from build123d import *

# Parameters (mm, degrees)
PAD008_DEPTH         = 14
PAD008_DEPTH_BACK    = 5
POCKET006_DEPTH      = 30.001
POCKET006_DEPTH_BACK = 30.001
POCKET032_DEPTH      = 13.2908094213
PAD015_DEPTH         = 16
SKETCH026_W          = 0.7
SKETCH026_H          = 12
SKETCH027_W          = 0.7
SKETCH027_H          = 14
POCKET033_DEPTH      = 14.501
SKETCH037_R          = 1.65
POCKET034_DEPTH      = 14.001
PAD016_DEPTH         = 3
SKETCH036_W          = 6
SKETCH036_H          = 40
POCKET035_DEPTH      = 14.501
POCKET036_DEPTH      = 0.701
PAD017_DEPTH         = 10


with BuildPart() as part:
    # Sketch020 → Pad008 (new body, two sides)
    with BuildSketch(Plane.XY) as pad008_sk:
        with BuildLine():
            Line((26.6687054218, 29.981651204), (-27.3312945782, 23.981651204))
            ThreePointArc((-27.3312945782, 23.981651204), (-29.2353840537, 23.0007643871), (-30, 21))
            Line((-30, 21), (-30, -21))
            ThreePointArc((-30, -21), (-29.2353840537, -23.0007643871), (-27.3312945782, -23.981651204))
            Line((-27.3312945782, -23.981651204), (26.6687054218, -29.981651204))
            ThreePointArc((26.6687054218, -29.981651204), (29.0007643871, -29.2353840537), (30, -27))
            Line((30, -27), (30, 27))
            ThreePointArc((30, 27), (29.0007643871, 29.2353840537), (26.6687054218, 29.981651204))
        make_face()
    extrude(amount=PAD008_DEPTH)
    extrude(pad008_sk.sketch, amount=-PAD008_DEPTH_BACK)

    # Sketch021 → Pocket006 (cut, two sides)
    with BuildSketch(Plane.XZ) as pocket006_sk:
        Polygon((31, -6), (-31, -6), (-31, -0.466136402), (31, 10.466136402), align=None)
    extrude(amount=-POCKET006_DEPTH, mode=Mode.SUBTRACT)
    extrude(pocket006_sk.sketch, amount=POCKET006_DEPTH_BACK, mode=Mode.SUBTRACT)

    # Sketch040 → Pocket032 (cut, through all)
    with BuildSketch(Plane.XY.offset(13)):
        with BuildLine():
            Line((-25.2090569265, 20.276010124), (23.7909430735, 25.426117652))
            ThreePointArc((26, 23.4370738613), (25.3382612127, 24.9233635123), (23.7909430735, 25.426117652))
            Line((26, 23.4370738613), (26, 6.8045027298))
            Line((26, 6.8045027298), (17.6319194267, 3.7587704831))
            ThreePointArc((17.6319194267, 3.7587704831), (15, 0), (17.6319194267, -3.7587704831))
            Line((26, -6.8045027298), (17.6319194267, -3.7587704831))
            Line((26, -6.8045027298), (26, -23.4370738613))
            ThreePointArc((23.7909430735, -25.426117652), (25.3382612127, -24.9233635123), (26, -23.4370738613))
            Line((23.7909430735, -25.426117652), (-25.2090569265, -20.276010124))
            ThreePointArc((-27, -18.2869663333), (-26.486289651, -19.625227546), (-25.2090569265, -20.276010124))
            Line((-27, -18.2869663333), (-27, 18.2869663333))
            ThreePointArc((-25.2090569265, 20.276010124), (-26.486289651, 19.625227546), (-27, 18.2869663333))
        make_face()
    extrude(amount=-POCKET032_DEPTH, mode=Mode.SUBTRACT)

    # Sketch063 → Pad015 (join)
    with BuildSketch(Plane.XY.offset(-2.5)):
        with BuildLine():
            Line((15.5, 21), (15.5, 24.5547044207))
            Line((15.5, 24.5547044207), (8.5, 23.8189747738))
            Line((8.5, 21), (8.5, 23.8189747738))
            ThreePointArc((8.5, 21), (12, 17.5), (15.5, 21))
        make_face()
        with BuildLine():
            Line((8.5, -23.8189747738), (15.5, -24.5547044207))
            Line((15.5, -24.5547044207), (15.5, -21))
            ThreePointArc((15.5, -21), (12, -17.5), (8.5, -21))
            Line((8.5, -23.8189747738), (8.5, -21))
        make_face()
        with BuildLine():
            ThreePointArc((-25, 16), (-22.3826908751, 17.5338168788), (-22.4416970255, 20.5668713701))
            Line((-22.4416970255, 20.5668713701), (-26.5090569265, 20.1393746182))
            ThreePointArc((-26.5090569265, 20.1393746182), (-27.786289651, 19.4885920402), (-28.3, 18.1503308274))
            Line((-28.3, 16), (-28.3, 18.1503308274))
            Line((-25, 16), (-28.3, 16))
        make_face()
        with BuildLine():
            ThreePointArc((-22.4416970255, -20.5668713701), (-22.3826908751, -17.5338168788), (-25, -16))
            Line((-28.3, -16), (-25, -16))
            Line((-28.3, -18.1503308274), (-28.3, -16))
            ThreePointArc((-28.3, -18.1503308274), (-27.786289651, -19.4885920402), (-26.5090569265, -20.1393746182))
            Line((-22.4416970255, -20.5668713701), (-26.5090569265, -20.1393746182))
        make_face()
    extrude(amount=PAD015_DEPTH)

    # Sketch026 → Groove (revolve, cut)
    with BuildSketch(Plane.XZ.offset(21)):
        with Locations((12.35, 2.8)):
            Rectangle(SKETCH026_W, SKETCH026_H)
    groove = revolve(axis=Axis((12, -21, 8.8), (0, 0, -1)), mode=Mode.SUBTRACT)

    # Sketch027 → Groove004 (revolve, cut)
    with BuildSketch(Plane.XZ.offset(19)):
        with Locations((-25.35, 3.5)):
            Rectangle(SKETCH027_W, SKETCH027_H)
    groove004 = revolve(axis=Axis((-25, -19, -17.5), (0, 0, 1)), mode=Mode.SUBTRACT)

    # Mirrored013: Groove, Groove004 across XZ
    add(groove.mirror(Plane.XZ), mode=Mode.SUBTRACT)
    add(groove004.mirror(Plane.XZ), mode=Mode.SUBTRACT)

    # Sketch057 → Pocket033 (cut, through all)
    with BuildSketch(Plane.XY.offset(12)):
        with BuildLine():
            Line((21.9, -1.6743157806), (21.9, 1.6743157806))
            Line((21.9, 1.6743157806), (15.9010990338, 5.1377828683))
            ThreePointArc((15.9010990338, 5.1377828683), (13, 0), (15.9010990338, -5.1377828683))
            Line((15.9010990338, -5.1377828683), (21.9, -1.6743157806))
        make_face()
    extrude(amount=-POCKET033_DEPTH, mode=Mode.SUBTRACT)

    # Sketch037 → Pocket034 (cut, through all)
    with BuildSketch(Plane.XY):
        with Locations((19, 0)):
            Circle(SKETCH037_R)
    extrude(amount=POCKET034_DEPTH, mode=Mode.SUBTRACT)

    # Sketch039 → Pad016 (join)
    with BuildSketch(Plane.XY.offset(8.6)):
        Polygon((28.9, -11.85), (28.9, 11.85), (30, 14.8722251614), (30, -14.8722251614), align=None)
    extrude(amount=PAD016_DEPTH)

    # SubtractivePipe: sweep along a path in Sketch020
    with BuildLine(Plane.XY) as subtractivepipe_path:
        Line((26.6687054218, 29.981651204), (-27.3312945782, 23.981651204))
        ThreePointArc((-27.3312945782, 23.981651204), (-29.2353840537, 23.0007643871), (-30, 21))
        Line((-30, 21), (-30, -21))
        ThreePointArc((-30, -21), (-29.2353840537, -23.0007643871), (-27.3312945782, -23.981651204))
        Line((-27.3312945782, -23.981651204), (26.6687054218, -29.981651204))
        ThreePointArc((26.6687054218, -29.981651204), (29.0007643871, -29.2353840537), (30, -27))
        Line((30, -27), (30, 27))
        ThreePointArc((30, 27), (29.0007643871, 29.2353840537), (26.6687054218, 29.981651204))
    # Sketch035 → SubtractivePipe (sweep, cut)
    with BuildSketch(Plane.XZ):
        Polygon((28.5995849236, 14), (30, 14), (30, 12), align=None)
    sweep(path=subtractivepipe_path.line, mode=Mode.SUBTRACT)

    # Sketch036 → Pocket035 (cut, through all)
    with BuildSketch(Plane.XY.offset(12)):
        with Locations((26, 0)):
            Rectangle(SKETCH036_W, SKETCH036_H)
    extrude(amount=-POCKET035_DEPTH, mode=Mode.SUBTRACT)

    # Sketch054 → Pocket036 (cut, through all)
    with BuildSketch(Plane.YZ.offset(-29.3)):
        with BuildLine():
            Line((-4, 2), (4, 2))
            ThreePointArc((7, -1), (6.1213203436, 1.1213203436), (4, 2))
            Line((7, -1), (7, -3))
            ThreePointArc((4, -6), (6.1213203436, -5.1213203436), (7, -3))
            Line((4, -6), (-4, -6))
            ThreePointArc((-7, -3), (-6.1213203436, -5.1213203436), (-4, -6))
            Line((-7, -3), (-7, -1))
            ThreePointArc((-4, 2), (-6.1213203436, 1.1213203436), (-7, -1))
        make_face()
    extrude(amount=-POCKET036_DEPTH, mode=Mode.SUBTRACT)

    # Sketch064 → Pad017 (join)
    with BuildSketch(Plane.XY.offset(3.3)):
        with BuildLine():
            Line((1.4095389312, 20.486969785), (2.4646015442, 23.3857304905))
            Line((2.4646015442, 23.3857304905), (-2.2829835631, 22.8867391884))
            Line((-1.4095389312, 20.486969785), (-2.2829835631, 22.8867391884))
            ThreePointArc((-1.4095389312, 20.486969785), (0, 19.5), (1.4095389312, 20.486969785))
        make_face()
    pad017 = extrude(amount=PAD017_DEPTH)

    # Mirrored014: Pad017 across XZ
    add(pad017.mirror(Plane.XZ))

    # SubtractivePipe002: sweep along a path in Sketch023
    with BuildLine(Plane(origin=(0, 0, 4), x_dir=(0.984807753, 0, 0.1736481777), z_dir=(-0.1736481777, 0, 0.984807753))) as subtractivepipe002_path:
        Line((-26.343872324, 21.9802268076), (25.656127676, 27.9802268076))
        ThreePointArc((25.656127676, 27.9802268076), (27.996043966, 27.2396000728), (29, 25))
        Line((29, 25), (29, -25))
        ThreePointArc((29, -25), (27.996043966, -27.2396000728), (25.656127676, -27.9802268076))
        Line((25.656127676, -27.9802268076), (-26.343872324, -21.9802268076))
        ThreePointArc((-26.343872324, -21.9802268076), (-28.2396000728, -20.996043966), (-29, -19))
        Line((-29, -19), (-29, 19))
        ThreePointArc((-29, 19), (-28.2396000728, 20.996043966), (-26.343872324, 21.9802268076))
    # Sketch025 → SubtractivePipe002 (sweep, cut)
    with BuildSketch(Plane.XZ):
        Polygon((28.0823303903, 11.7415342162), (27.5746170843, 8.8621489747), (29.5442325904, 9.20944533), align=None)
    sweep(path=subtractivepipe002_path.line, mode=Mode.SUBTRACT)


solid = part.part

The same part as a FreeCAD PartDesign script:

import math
import FreeCAD as App
import Part
import Sketcher
from FreeCAD import Vector
Q = App.Units.Quantity


def add_polygon(sketch, points):
    """Adds a closed chain of lines whose ends are joined by coincident constraints."""
    first, n = sketch.GeometryCount, len(points)
    for a, b in zip(points, points[1:] + points[:1]):
        sketch.addGeometry(Part.LineSegment(App.Vector(*a, 0), App.Vector(*b, 0)), False)
    for i in range(n):
        sketch.addConstraint(Sketcher.Constraint("Coincident", first + i, 2, first + (i + 1) % n, 1))

doc = App.newDocument("Part")
body = doc.addObject("PartDesign::Body", "Body")

sketch1 = body.newObject("Sketcher::SketchObject", "Sketch")
sketch1.AttachmentSupport = (doc.getObject("XY_Plane"), [""])
sketch1.MapMode = "FlatFace"
sketch1.addGeometry(Part.LineSegment(Vector(26.668705, 29.981651, 0), Vector(-27.331295, 23.981651, 0)), False)
sketch1.addGeometry(Part.ArcOfCircle(Part.Circle(Vector(-27, 21, 0), Vector(0, 0, 1), 3), math.radians(96.340192), math.radians(180)), False)
sketch1.addGeometry(Part.LineSegment(Vector(-30, 21, 0), Vector(-30, -21, 0)), False)
sketch1.addGeometry(Part.ArcOfCircle(Part.Circle(Vector(-27, -21, 0), Vector(0, 0, 1), 3), math.radians(180), math.radians(263.659808)), False)
sketch1.addGeometry(Part.LineSegment(Vector(-27.331295, -23.981651, 0), Vector(26.668705, -29.981651, 0)), False)
sketch1.addGeometry(Part.ArcOfCircle(Part.Circle(Vector(27, -27, 0), Vector(0, 0, 1), 3), math.radians(-96.340192), math.radians(0)), False)
sketch1.addGeometry(Part.LineSegment(Vector(30, -27, 0), Vector(30, 27, 0)), False)
sketch1.addGeometry(Part.ArcOfCircle(Part.Circle(Vector(27, 27, 0), Vector(0, 0, 1), 3), math.radians(0), math.radians(96.340192)), False)
sketch1.addConstraint(Sketcher.Constraint("Tangent", 0, 2, 1, 1))
sketch1.addConstraint(Sketcher.Constraint("Tangent", 1, 2, 2, 1))
sketch1.addConstraint(Sketcher.Constraint("Tangent", 2, 2, 3, 1))
sketch1.addConstraint(Sketcher.Constraint("Tangent", 3, 2, 4, 1))
sketch1.addConstraint(Sketcher.Constraint("Tangent", 4, 2, 5, 1))
sketch1.addConstraint(Sketcher.Constraint("Tangent", 5, 2, 6, 1))
sketch1.addConstraint(Sketcher.Constraint("Tangent", 6, 2, 7, 1))
sketch1.addConstraint(Sketcher.Constraint("Tangent", 7, 2, 0, 1))
sketch1.addConstraint(Sketcher.Constraint("Vertical", 2))
sketch1.addConstraint(Sketcher.Constraint("Vertical", 6))
sketch1.addConstraint(Sketcher.Constraint("Equal", 1, 3))
sketch1.addConstraint(Sketcher.Constraint("Equal", 3, 5))
sketch1.addConstraint(Sketcher.Constraint("Equal", 5, 7))
sketch1.addConstraint(Sketcher.Constraint("Symmetric", 0, 2, 3, 2, -1))
sketch1.addConstraint(Sketcher.Constraint("Radius", 1, Q("3 mm")))
sketch1.addConstraint(Sketcher.Constraint("DistanceY", 2, 2, 2, 1, Q("42 mm")))
sketch1.addConstraint(Sketcher.Constraint("DistanceY", 6, 1, 6, 2, Q("54 mm")))
sketch1.addConstraint(Sketcher.Constraint("DistanceX", 1, 3, -1, 1, Q("27 mm")))
sketch1.addConstraint(Sketcher.Constraint("DistanceX", -1, 1, 5, 3, Q("27 mm")))
pad1 = body.newObject("PartDesign::Pad", "Pad")
pad1.Profile = sketch1
pad1.Type = "TwoLengths"
pad1.Length = 14
pad1.Length2 = 5

sketch2 = body.newObject("Sketcher::SketchObject", "Sketch001")
sketch2.AttachmentSupport = (doc.getObject("XZ_Plane"), [""])
sketch2.MapMode = "FlatFace"
add_polygon(sketch2, [(-31, -6), (31, -6), (31, 10.466136), (-31, -0.466136)])
sketch2.addConstraint(Sketcher.Constraint("Horizontal", 0))
sketch2.addConstraint(Sketcher.Constraint("Vertical", 1))
sketch2.addConstraint(Sketcher.Constraint("Vertical", 3))
sketch2.addConstraint(Sketcher.Constraint("DistanceX", 0, 1, 0, 2, Q("62 mm")))
sketch2.addConstraint(Sketcher.Constraint("Angle", 2, Q("-170 deg")))
sketch2.addConstraint(Sketcher.Constraint("DistanceX", -1, 1, 0, 2, Q("31 mm")))
sketch2.addConstraint(Sketcher.Constraint("DistanceY", 0, 2, -1, 1, Q("6 mm")))
sketch2.addConstraint(Sketcher.Constraint("DistanceY", 1, 1, 1, 2, Q("16.466136 mm")))
pocket1 = body.newObject("PartDesign::Pocket", "Pocket")
pocket1.Profile = sketch2
pocket1.Type = "ThroughAll"
pocket1.Midplane = True

sketch3 = body.newObject("Sketcher::SketchObject", "Sketch002")
sketch3.AttachmentSupport = (doc.getObject("XY_Plane"), [""])
sketch3.MapMode = "FlatFace"
sketch3.AttachmentOffset = App.Placement(Vector(0, 0, 13), App.Rotation())
sketch3.addGeometry(Part.LineSegment(Vector(23.790943, 25.426118, 0), Vector(-25.209057, 20.27601, 0)), False)
sketch3.addGeometry(Part.ArcOfCircle(Part.Circle(Vector(-25, 18.286966, 0), Vector(0, 0, 1), 2), math.radians(96), math.radians(180)), False)
sketch3.addGeometry(Part.LineSegment(Vector(-27, 18.286966, 0), Vector(-27, -18.286966, 0)), False)
sketch3.addGeometry(Part.ArcOfCircle(Part.Circle(Vector(-25, -18.286966, 0), Vector(0, 0, 1), 2), math.radians(180), math.radians(264)), False)
sketch3.addGeometry(Part.LineSegment(Vector(-25.209057, -20.27601, 0), Vector(23.790943, -25.426118, 0)), False)
sketch3.addGeometry(Part.ArcOfCircle(Part.Circle(Vector(24, -23.437074, 0), Vector(0, 0, 1), 2), math.radians(-96), math.radians(0)), False)
sketch3.addGeometry(Part.LineSegment(Vector(26, -23.437074, 0), Vector(26, -6.804503, 0)), False)
sketch3.addGeometry(Part.LineSegment(Vector(26, -6.804503, 0), Vector(17.631919, -3.75877, 0)), False)
sketch3.addGeometry(Part.ArcOfCircle(Part.Circle(Vector(19, 0, 0), Vector(0, 0, 1), 4), math.radians(110), math.radians(250)), False)
sketch3.addGeometry(Part.LineSegment(Vector(17.631919, 3.75877, 0), Vector(26, 6.804503, 0)), False)
sketch3.addGeometry(Part.LineSegment(Vector(26, 6.804503, 0), Vector(26, 23.437074, 0)), False)
sketch3.addGeometry(Part.ArcOfCircle(Part.Circle(Vector(24, 23.437074, 0), Vector(0, 0, 1), 2), math.radians(0), math.radians(96)), False)
sketch3.addConstraint(Sketcher.Constraint("Tangent", 0, 2, 1, 1))
sketch3.addConstraint(Sketcher.Constraint("Tangent", 1, 2, 2, 1))
sketch3.addConstraint(Sketcher.Constraint("Tangent", 2, 2, 3, 1))
sketch3.addConstraint(Sketcher.Constraint("Tangent", 3, 2, 4, 1))
sketch3.addConstraint(Sketcher.Constraint("Tangent", 4, 2, 5, 1))
sketch3.addConstraint(Sketcher.Constraint("Tangent", 5, 2, 6, 1))
sketch3.addConstraint(Sketcher.Constraint("Coincident", 6, 2, 7, 1))
sketch3.addConstraint(Sketcher.Constraint("Tangent", 7, 2, 8, 2))
sketch3.addConstraint(Sketcher.Constraint("Tangent", 8, 1, 9, 1))
sketch3.addConstraint(Sketcher.Constraint("Coincident", 9, 2, 10, 1))
sketch3.addConstraint(Sketcher.Constraint("Tangent", 10, 2, 11, 1))
sketch3.addConstraint(Sketcher.Constraint("Tangent", 11, 2, 0, 1))
sketch3.addConstraint(Sketcher.Constraint("Vertical", 2))
sketch3.addConstraint(Sketcher.Constraint("Vertical", 6))
sketch3.addConstraint(Sketcher.Constraint("Vertical", 10))
sketch3.addConstraint(Sketcher.Constraint("Equal", 1, 3))
sketch3.addConstraint(Sketcher.Constraint("Equal", 3, 5))
sketch3.addConstraint(Sketcher.Constraint("Equal", 5, 11))
sketch3.addConstraint(Sketcher.Constraint("Symmetric", 5, 3, 11, 3, -1))
sketch3.addConstraint(Sketcher.Constraint("Symmetric", 7, 2, 8, 1, -1))
sketch3.addConstraint(Sketcher.Constraint("Vertical", 0, 2, 3, 2))
sketch3.addConstraint(Sketcher.Constraint("Radius", 1, Q("2 mm")))
sketch3.addConstraint(Sketcher.Constraint("Radius", 8, Q("4 mm")))
sketch3.addConstraint(Sketcher.Constraint("Angle", 0, Q("-174 deg")))
sketch3.addConstraint(Sketcher.Constraint("Angle", 7, Q("160 deg")))
sketch3.addConstraint(Sketcher.Constraint("DistanceX", 1, 3, -1, 1, Q("25 mm")))
sketch3.addConstraint(Sketcher.Constraint("DistanceX", -1, 1, 5, 3, Q("24 mm")))
sketch3.addConstraint(Sketcher.Constraint("DistanceX", -1, 1, 8, 3, Q("19 mm")))
sketch3.addConstraint(Sketcher.Constraint("DistanceY", 6, 1, 6, 2, Q("16.632571 mm")))
pocket2 = body.newObject("PartDesign::Pocket", "Pocket001")
pocket2.Profile = sketch3
pocket2.Type = "ThroughAll"

sketch4 = body.newObject("Sketcher::SketchObject", "Sketch003")
sketch4.AttachmentSupport = (doc.getObject("XY_Plane"), [""])
sketch4.MapMode = "FlatFace"
sketch4.AttachmentOffset = App.Placement(Vector(0, 0, -2.5), App.Rotation())
sketch4.addGeometry(Part.LineSegment(Vector(15.5, 21, 0), Vector(15.5, 24.554704, 0)), False)
sketch4.addGeometry(Part.LineSegment(Vector(15.5, 24.554704, 0), Vector(8.5, 23.818975, 0)), False)
sketch4.addGeometry(Part.LineSegment(Vector(8.5, 23.818975, 0), Vector(8.5, 21, 0)), False)
sketch4.addGeometry(Part.ArcOfCircle(Part.Circle(Vector(12, 21, 0), Vector(0, 0, 1), 3.5), math.radians(180), math.radians(360)), False)
sketch4.addGeometry(Part.LineSegment(Vector(8.5, -23.818975, 0), Vector(15.5, -24.554704, 0)), False)
sketch4.addGeometry(Part.LineSegment(Vector(15.5, -24.554704, 0), Vector(15.5, -21, 0)), False)
sketch4.addGeometry(Part.ArcOfCircle(Part.Circle(Vector(12, -21, 0), Vector(0, 0, 1), 3.5), math.radians(0), math.radians(180)), False)
sketch4.addGeometry(Part.LineSegment(Vector(8.5, -21, 0), Vector(8.5, -23.818975, 0)), False)
sketch4.addGeometry(Part.ArcOfCircle(Part.Circle(Vector(-25, 19, 0), Vector(0, 0, 1), 3), math.radians(-90), math.radians(31.486017)), False)
sketch4.addGeometry(Part.LineSegment(Vector(-22.441697, 20.566871, 0), Vector(-26.509057, 20.139375, 0)), False)
sketch4.addGeometry(Part.ArcOfCircle(Part.Circle(Vector(-26.3, 18.150331, 0), Vector(0, 0, 1), 2), math.radians(96), math.radians(180)), False)
sketch4.addGeometry(Part.LineSegment(Vector(-28.3, 18.150331, 0), Vector(-28.3, 16, 0)), False)
sketch4.addGeometry(Part.LineSegment(Vector(-28.3, 16, 0), Vector(-25, 16, 0)), False)
sketch4.addGeometry(Part.ArcOfCircle(Part.Circle(Vector(-25, -19, 0), Vector(0, 0, 1), 3), math.radians(-31.486017), math.radians(90)), False)
sketch4.addGeometry(Part.LineSegment(Vector(-25, -16, 0), Vector(-28.3, -16, 0)), False)
sketch4.addGeometry(Part.LineSegment(Vector(-28.3, -16, 0), Vector(-28.3, -18.150331, 0)), False)
sketch4.addGeometry(Part.ArcOfCircle(Part.Circle(Vector(-26.3, -18.150331, 0), Vector(0, 0, 1), 2), math.radians(180), math.radians(264)), False)
sketch4.addGeometry(Part.LineSegment(Vector(-26.509057, -20.139375, 0), Vector(-22.441697, -20.566871, 0)), False)
sketch4.addConstraint(Sketcher.Constraint("Coincident", 0, 2, 1, 1))
sketch4.addConstraint(Sketcher.Constraint("Coincident", 1, 2, 2, 1))
sketch4.addConstraint(Sketcher.Constraint("Tangent", 2, 2, 3, 1))
sketch4.addConstraint(Sketcher.Constraint("Tangent", 3, 2, 0, 1))
sketch4.addConstraint(Sketcher.Constraint("Coincident", 4, 2, 5, 1))
sketch4.addConstraint(Sketcher.Constraint("Tangent", 5, 2, 6, 1))
sketch4.addConstraint(Sketcher.Constraint("Tangent", 6, 2, 7, 1))
sketch4.addConstraint(Sketcher.Constraint("Coincident", 7, 2, 4, 1))
sketch4.addConstraint(Sketcher.Constraint("Coincident", 8, 2, 9, 1))
sketch4.addConstraint(Sketcher.Constraint("Tangent", 9, 2, 10, 1))
sketch4.addConstraint(Sketcher.Constraint("Tangent", 10, 2, 11, 1))
sketch4.addConstraint(Sketcher.Constraint("Coincident", 11, 2, 12, 1))
sketch4.addConstraint(Sketcher.Constraint("Tangent", 12, 2, 8, 1))
sketch4.addConstraint(Sketcher.Constraint("Tangent", 13, 2, 14, 1))
sketch4.addConstraint(Sketcher.Constraint("Coincident", 14, 2, 15, 1))
sketch4.addConstraint(Sketcher.Constraint("Tangent", 15, 2, 16, 1))
sketch4.addConstraint(Sketcher.Constraint("Tangent", 16, 2, 17, 1))
sketch4.addConstraint(Sketcher.Constraint("Coincident", 17, 2, 13, 1))
sketch4.addConstraint(Sketcher.Constraint("Vertical", 0))
sketch4.addConstraint(Sketcher.Constraint("Vertical", 2))
sketch4.addConstraint(Sketcher.Constraint("Vertical", 5))
sketch4.addConstraint(Sketcher.Constraint("Vertical", 7))
sketch4.addConstraint(Sketcher.Constraint("Vertical", 11))
sketch4.addConstraint(Sketcher.Constraint("Horizontal", 12))
sketch4.addConstraint(Sketcher.Constraint("Horizontal", 14))
sketch4.addConstraint(Sketcher.Constraint("Vertical", 15))
sketch4.addConstraint(Sketcher.Constraint("Equal", 3, 6))
sketch4.addConstraint(Sketcher.Constraint("Equal", 8, 13))
sketch4.addConstraint(Sketcher.Constraint("Equal", 10, 16))
sketch4.addConstraint(Sketcher.Constraint("Symmetric", 3, 3, 6, 3, -1))
sketch4.addConstraint(Sketcher.Constraint("Symmetric", 8, 3, 13, 3, -1))
sketch4.addConstraint(Sketcher.Constraint("Symmetric", 10, 3, 16, 3, -1))
sketch4.addConstraint(Sketcher.Constraint("Parallel", 1, 9))
sketch4.addConstraint(Sketcher.Constraint("Parallel", 4, 17))
sketch4.addConstraint(Sketcher.Constraint("Vertical", 9, 2, 16, 2))
sketch4.addConstraint(Sketcher.Constraint("Equal", 0, 5))
sketch4.addConstraint(Sketcher.Constraint("Radius", 8, Q("3 mm")))
sketch4.addConstraint(Sketcher.Constraint("Radius", 10, Q("2 mm")))
sketch4.addConstraint(Sketcher.Constraint("Radius", 3, Q("3.5 mm")))
sketch4.addConstraint(Sketcher.Constraint("Angle", 1, Q("-174 deg")))
sketch4.addConstraint(Sketcher.Constraint("DistanceX", 12, 1, 12, 2, Q("3.3 mm")))
sketch4.addConstraint(Sketcher.Constraint("DistanceX", -1, 1, 3, 3, Q("12 mm")))
sketch4.addConstraint(Sketcher.Constraint("DistanceY", -1, 1, 3, 3, Q("21 mm")))
sketch4.addConstraint(Sketcher.Constraint("DistanceX", 8, 3, -1, 1, Q("25 mm")))
sketch4.addConstraint(Sketcher.Constraint("DistanceY", -1, 1, 8, 3, Q("19 mm")))
sketch4.addConstraint(Sketcher.Constraint("DistanceY", 11, 2, 11, 1, Q("2.150331 mm")))
sketch4.addConstraint(Sketcher.Constraint("DistanceY", 9, 2, 1, 2, Q("3.6796 mm")))
pad2 = body.newObject("PartDesign::Pad", "Pad001")
pad2.Profile = sketch4
pad2.Length = 16

sketch5 = body.newObject("Sketcher::SketchObject", "Sketch004")
sketch5.AttachmentSupport = (doc.getObject("XZ_Plane"), [""])
sketch5.MapMode = "FlatFace"
sketch5.AttachmentOffset = App.Placement(Vector(0, 0, 21), App.Rotation())
add_polygon(sketch5, [(12, 8.8), (12, -3.2), (12.7, -3.2), (12.7, 8.8)])
sketch5.addGeometry(Part.LineSegment(Vector(12, 8.8, 0), Vector(12, -3.2, 0)), True)
sketch5.addConstraint(Sketcher.Constraint("Vertical", 0))
sketch5.addConstraint(Sketcher.Constraint("Horizontal", 1))
sketch5.addConstraint(Sketcher.Constraint("Vertical", 2))
sketch5.addConstraint(Sketcher.Constraint("Horizontal", 3))
sketch5.addConstraint(Sketcher.Constraint("Vertical", 4))
sketch5.addConstraint(Sketcher.Constraint("Coincident", 4, 1, 3, 2))
sketch5.addConstraint(Sketcher.Constraint("Horizontal", 1, 2, 4, 2))
sketch5.addConstraint(Sketcher.Constraint("DistanceY", 0, 2, 0, 1, Q("12 mm")))
sketch5.addConstraint(Sketcher.Constraint("DistanceX", 1, 1, 1, 2, Q("0.7 mm")))
sketch5.addConstraint(Sketcher.Constraint("DistanceX", -1, 1, 0, 2, Q("12 mm")))
sketch5.addConstraint(Sketcher.Constraint("DistanceY", 0, 2, -1, 1, Q("3.2 mm")))
groove = body.newObject("PartDesign::Groove", "Groove")
groove.Profile = sketch5
groove.ReferenceAxis = (sketch5, ["Axis0"])
groove.Angle = 360

sketch6 = body.newObject("Sketcher::SketchObject", "Sketch005")
sketch6.AttachmentSupport = (doc.getObject("XZ_Plane"), [""])
sketch6.MapMode = "FlatFace"
sketch6.AttachmentOffset = App.Placement(Vector(0, 0, 19), App.Rotation())
add_polygon(sketch6, [(-25.7, 10.5), (-25.7, -3.5), (-25, -3.5), (-25, 10.5)])
sketch6.addGeometry(Part.LineSegment(Vector(-25, -3.5, 0), Vector(-25, 10.5, 0)), True)
sketch6.addConstraint(Sketcher.Constraint("Vertical", 0))
sketch6.addConstraint(Sketcher.Constraint("Horizontal", 1))
sketch6.addConstraint(Sketcher.Constraint("Vertical", 2))
sketch6.addConstraint(Sketcher.Constraint("Horizontal", 3))
sketch6.addConstraint(Sketcher.Constraint("Vertical", 4))
sketch6.addConstraint(Sketcher.Constraint("Coincident", 4, 1, 1, 2))
sketch6.addConstraint(Sketcher.Constraint("Horizontal", 3, 2, 4, 2))
sketch6.addConstraint(Sketcher.Constraint("DistanceY", 0, 2, 0, 1, Q("14 mm")))
sketch6.addConstraint(Sketcher.Constraint("DistanceX", 1, 1, 1, 2, Q("0.7 mm")))
sketch6.addConstraint(Sketcher.Constraint("DistanceX", 1, 2, -1, 1, Q("25 mm")))
sketch6.addConstraint(Sketcher.Constraint("DistanceY", 0, 2, -1, 1, Q("3.5 mm")))
groove2 = body.newObject("PartDesign::Groove", "Groove001")
groove2.Profile = sketch6
groove2.ReferenceAxis = (sketch6, ["Axis0"])
groove2.Angle = 360
doc.recompute()

mirrored = body.newObject("PartDesign::Mirrored", "Mirrored")
mirrored.Originals = [groove, groove2]
mirrored.MirrorPlane = (doc.getObject("XZ_Plane"), [""])
body.Tip = mirrored

sketch7 = body.newObject("Sketcher::SketchObject", "Sketch006")
sketch7.AttachmentSupport = (doc.getObject("XY_Plane"), [""])
sketch7.MapMode = "FlatFace"
sketch7.AttachmentOffset = App.Placement(Vector(0, 0, 12), App.Rotation())
sketch7.addGeometry(Part.LineSegment(Vector(21.9, -1.674316, 0), Vector(21.9, 1.674316, 0)), False)
sketch7.addGeometry(Part.LineSegment(Vector(21.9, 1.674316, 0), Vector(15.901099, 5.137783, 0)), False)
sketch7.addGeometry(Part.ArcOfCircle(Part.Circle(Vector(19, 0, 0), Vector(0, 0, 1), 6), math.radians(121.096665), math.radians(238.903335)), False)
sketch7.addGeometry(Part.LineSegment(Vector(15.901099, -5.137783, 0), Vector(21.9, -1.674316, 0)), False)
sketch7.addConstraint(Sketcher.Constraint("Coincident", 0, 2, 1, 1))
sketch7.addConstraint(Sketcher.Constraint("Coincident", 1, 2, 2, 1))
sketch7.addConstraint(Sketcher.Constraint("Coincident", 2, 2, 3, 1))
sketch7.addConstraint(Sketcher.Constraint("Coincident", 3, 2, 0, 1))
sketch7.addConstraint(Sketcher.Constraint("Vertical", 0))
sketch7.addConstraint(Sketcher.Constraint("Symmetric", 1, 2, 2, 2, -1))
sketch7.addConstraint(Sketcher.Constraint("Equal", 1, 3))
sketch7.addConstraint(Sketcher.Constraint("Radius", 2, Q("6 mm")))
sketch7.addConstraint(Sketcher.Constraint("Angle", 1, Q("150 deg")))
sketch7.addConstraint(Sketcher.Constraint("DistanceX", -1, 1, 2, 3, Q("19 mm")))
sketch7.addConstraint(Sketcher.Constraint("DistanceX", -1, 1, 0, 2, Q("21.9 mm")))
sketch7.addConstraint(Sketcher.Constraint("DistanceY", 0, 1, 0, 2, Q("3.348632 mm")))
pocket3 = body.newObject("PartDesign::Pocket", "Pocket002")
pocket3.Profile = sketch7
pocket3.Type = "ThroughAll"

sketch8 = body.newObject("Sketcher::SketchObject", "Sketch007")
sketch8.AttachmentSupport = (doc.getObject("XY_Plane"), [""])
sketch8.MapMode = "FlatFace"
sketch8.addGeometry(Part.Circle(Vector(19, 0, 0), Vector(0, 0, 1), 1.65), False)
sketch8.addConstraint(Sketcher.Constraint("PointOnObject", 0, 3, -1))
sketch8.addConstraint(Sketcher.Constraint("Diameter", 0, Q("3.3 mm")))
sketch8.addConstraint(Sketcher.Constraint("DistanceX", -1, 1, 0, 3, Q("19 mm")))
pocket4 = body.newObject("PartDesign::Pocket", "Pocket003")
pocket4.Profile = sketch8
pocket4.Type = "ThroughAll"
pocket4.Reversed = True

sketch9 = body.newObject("Sketcher::SketchObject", "Sketch008")
sketch9.AttachmentSupport = (doc.getObject("XY_Plane"), [""])
sketch9.MapMode = "FlatFace"
sketch9.AttachmentOffset = App.Placement(Vector(0, 0, 8.6), App.Rotation())
add_polygon(sketch9, [(28.9, 11.85), (28.9, -11.85), (30, -14.872225), (30, 14.872225)])
sketch9.addConstraint(Sketcher.Constraint("Vertical", 0))
sketch9.addConstraint(Sketcher.Constraint("Vertical", 2))
sketch9.addConstraint(Sketcher.Constraint("Equal", 1, 3))
sketch9.addConstraint(Sketcher.Constraint("Angle", 1, Q("-70 deg")))
sketch9.addConstraint(Sketcher.Constraint("DistanceY", 0, 2, 0, 1, Q("23.7 mm")))
sketch9.addConstraint(Sketcher.Constraint("DistanceX", -1, 1, 1, 2, Q("30 mm")))
sketch9.addConstraint(Sketcher.Constraint("DistanceX", -1, 1, 0, 2, Q("28.9 mm")))
sketch9.addConstraint(Sketcher.Constraint("DistanceY", 0, 2, -1, 1, Q("11.85 mm")))
pad3 = body.newObject("PartDesign::Pad", "Pad002")
pad3.Profile = sketch9
pad3.Length = 3

sketch10 = body.newObject("Sketcher::SketchObject", "Sketch009")
sketch10.AttachmentSupport = (doc.getObject("XZ_Plane"), [""])
sketch10.MapMode = "FlatFace"
add_polygon(sketch10, [(30, 14), (28.599585, 14), (30, 12)])
sketch10.addConstraint(Sketcher.Constraint("Horizontal", 0))
sketch10.addConstraint(Sketcher.Constraint("Vertical", 2))
sketch10.addConstraint(Sketcher.Constraint("DistanceY", 2, 1, 2, 2, Q("2 mm")))
sketch10.addConstraint(Sketcher.Constraint("Angle", 1, Q("-55 deg")))
sketch10.addConstraint(Sketcher.Constraint("DistanceY", -1, 1, 0, 2, Q("14 mm")))
sketch10.addConstraint(Sketcher.Constraint("DistanceX", -1, 1, 1, 2, Q("30 mm")))

sketch11 = body.newObject("Sketcher::SketchObject", "Sketch010")
sketch11.AttachmentSupport = (doc.getObject("XY_Plane"), [""])
sketch11.MapMode = "FlatFace"
sketch11.addGeometry(Part.LineSegment(Vector(26.668705, 29.981651, 0), Vector(-27.331295, 23.981651, 0)), False)
sketch11.addGeometry(Part.ArcOfCircle(Part.Circle(Vector(-27, 21, 0), Vector(0, 0, 1), 3), math.radians(96.340192), math.radians(180)), False)
sketch11.addGeometry(Part.LineSegment(Vector(-30, 21, 0), Vector(-30, -21, 0)), False)
sketch11.addGeometry(Part.ArcOfCircle(Part.Circle(Vector(-27, -21, 0), Vector(0, 0, 1), 3), math.radians(180), math.radians(263.659808)), False)
sketch11.addGeometry(Part.LineSegment(Vector(-27.331295, -23.981651, 0), Vector(26.668705, -29.981651, 0)), False)
sketch11.addGeometry(Part.ArcOfCircle(Part.Circle(Vector(27, -27, 0), Vector(0, 0, 1), 3), math.radians(-96.340192), math.radians(0)), False)
sketch11.addGeometry(Part.LineSegment(Vector(30, -27, 0), Vector(30, 27, 0)), False)
sketch11.addGeometry(Part.ArcOfCircle(Part.Circle(Vector(27, 27, 0), Vector(0, 0, 1), 3), math.radians(0), math.radians(96.340192)), False)
sketch11.addConstraint(Sketcher.Constraint("Tangent", 0, 2, 1, 1))
sketch11.addConstraint(Sketcher.Constraint("Tangent", 1, 2, 2, 1))
sketch11.addConstraint(Sketcher.Constraint("Tangent", 2, 2, 3, 1))
sketch11.addConstraint(Sketcher.Constraint("Tangent", 3, 2, 4, 1))
sketch11.addConstraint(Sketcher.Constraint("Tangent", 4, 2, 5, 1))
sketch11.addConstraint(Sketcher.Constraint("Tangent", 5, 2, 6, 1))
sketch11.addConstraint(Sketcher.Constraint("Tangent", 6, 2, 7, 1))
sketch11.addConstraint(Sketcher.Constraint("Tangent", 7, 2, 0, 1))
sketch11.addConstraint(Sketcher.Constraint("Vertical", 2))
sketch11.addConstraint(Sketcher.Constraint("Vertical", 6))
sketch11.addConstraint(Sketcher.Constraint("Equal", 1, 3))
sketch11.addConstraint(Sketcher.Constraint("Equal", 3, 5))
sketch11.addConstraint(Sketcher.Constraint("Equal", 5, 7))
sketch11.addConstraint(Sketcher.Constraint("Symmetric", 0, 2, 3, 2, -1))
sketch11.addConstraint(Sketcher.Constraint("Radius", 1, Q("3 mm")))
sketch11.addConstraint(Sketcher.Constraint("DistanceY", 2, 2, 2, 1, Q("42 mm")))
sketch11.addConstraint(Sketcher.Constraint("DistanceY", 6, 1, 6, 2, Q("54 mm")))
sketch11.addConstraint(Sketcher.Constraint("DistanceX", 1, 3, -1, 1, Q("27 mm")))
sketch11.addConstraint(Sketcher.Constraint("DistanceX", -1, 1, 5, 3, Q("27 mm")))
doc.recompute()

subtractivepipe = body.newObject("PartDesign::SubtractivePipe", "SubtractivePipe")
subtractivepipe.Profile = sketch10
subtractivepipe.Spine = (sketch11, ["Edge1", "Edge2", "Edge3", "Edge4", "Edge5", "Edge6", "Edge7", "Edge8"])

sketch12 = body.newObject("Sketcher::SketchObject", "Sketch011")
sketch12.AttachmentSupport = (doc.getObject("XY_Plane"), [""])
sketch12.MapMode = "FlatFace"
sketch12.AttachmentOffset = App.Placement(Vector(0, 0, 12), App.Rotation())
add_polygon(sketch12, [(23, 20), (23, -20), (29, -20), (29, 20)])
sketch12.addConstraint(Sketcher.Constraint("Vertical", 0))
sketch12.addConstraint(Sketcher.Constraint("Horizontal", 1))
sketch12.addConstraint(Sketcher.Constraint("Vertical", 2))
sketch12.addConstraint(Sketcher.Constraint("Horizontal", 3))
sketch12.addConstraint(Sketcher.Constraint("DistanceX", 1, 1, 1, 2, Q("6 mm")))
sketch12.addConstraint(Sketcher.Constraint("DistanceY", 0, 2, 0, 1, Q("40 mm")))
sketch12.addConstraint(Sketcher.Constraint("DistanceX", -1, 1, 0, 2, Q("23 mm")))
sketch12.addConstraint(Sketcher.Constraint("DistanceY", 0, 2, -1, 1, Q("20 mm")))
pocket5 = body.newObject("PartDesign::Pocket", "Pocket004")
pocket5.Profile = sketch12
pocket5.Type = "ThroughAll"

sketch13 = body.newObject("Sketcher::SketchObject", "Sketch012")
sketch13.AttachmentSupport = (doc.getObject("YZ_Plane"), [""])
sketch13.MapMode = "FlatFace"
sketch13.AttachmentOffset = App.Placement(Vector(0, 0, -29.3), App.Rotation())
sketch13.addGeometry(Part.LineSegment(Vector(4, 2, 0), Vector(-4, 2, 0)), False)
sketch13.addGeometry(Part.ArcOfCircle(Part.Circle(Vector(-4, -1, 0), Vector(0, 0, 1), 3), math.radians(90), math.radians(180)), False)
sketch13.addGeometry(Part.LineSegment(Vector(-7, -1, 0), Vector(-7, -3, 0)), False)
sketch13.addGeometry(Part.ArcOfCircle(Part.Circle(Vector(-4, -3, 0), Vector(0, 0, 1), 3), math.radians(180), math.radians(270)), False)
sketch13.addGeometry(Part.LineSegment(Vector(-4, -6, 0), Vector(4, -6, 0)), False)
sketch13.addGeometry(Part.ArcOfCircle(Part.Circle(Vector(4, -3, 0), Vector(0, 0, 1), 3), math.radians(-90), math.radians(0)), False)
sketch13.addGeometry(Part.LineSegment(Vector(7, -3, 0), Vector(7, -1, 0)), False)
sketch13.addGeometry(Part.ArcOfCircle(Part.Circle(Vector(4, -1, 0), Vector(0, 0, 1), 3), math.radians(0), math.radians(90)), False)
sketch13.addConstraint(Sketcher.Constraint("Tangent", 0, 2, 1, 1))
sketch13.addConstraint(Sketcher.Constraint("Tangent", 1, 2, 2, 1))
sketch13.addConstraint(Sketcher.Constraint("Tangent", 2, 2, 3, 1))
sketch13.addConstraint(Sketcher.Constraint("Tangent", 3, 2, 4, 1))
sketch13.addConstraint(Sketcher.Constraint("Tangent", 4, 2, 5, 1))
sketch13.addConstraint(Sketcher.Constraint("Tangent", 5, 2, 6, 1))
sketch13.addConstraint(Sketcher.Constraint("Tangent", 6, 2, 7, 1))
sketch13.addConstraint(Sketcher.Constraint("Tangent", 7, 2, 0, 1))
sketch13.addConstraint(Sketcher.Constraint("Horizontal", 0))
sketch13.addConstraint(Sketcher.Constraint("Vertical", 2))
sketch13.addConstraint(Sketcher.Constraint("Horizontal", 4))
sketch13.addConstraint(Sketcher.Constraint("Vertical", 6))
sketch13.addConstraint(Sketcher.Constraint("Equal", 1, 3))
sketch13.addConstraint(Sketcher.Constraint("Equal", 3, 5))
sketch13.addConstraint(Sketcher.Constraint("Equal", 5, 7))
sketch13.addConstraint(Sketcher.Constraint("Radius", 1, Q("3 mm")))
sketch13.addConstraint(Sketcher.Constraint("DistanceX", 0, 2, 0, 1, Q("8 mm")))
sketch13.addConstraint(Sketcher.Constraint("DistanceY", 2, 2, 2, 1, Q("2 mm")))
sketch13.addConstraint(Sketcher.Constraint("DistanceX", 1, 3, -1, 1, Q("4 mm")))
sketch13.addConstraint(Sketcher.Constraint("DistanceY", 1, 3, -1, 1, Q("1 mm")))
pocket6 = body.newObject("PartDesign::Pocket", "Pocket005")
pocket6.Profile = sketch13
pocket6.Type = "ThroughAll"

sketch14 = body.newObject("Sketcher::SketchObject", "Sketch013")
sketch14.AttachmentSupport = (doc.getObject("XY_Plane"), [""])
sketch14.MapMode = "FlatFace"
sketch14.AttachmentOffset = App.Placement(Vector(0, 0, 3.3), App.Rotation())
sketch14.addGeometry(Part.LineSegment(Vector(1.409539, 20.48697, 0), Vector(2.464602, 23.38573, 0)), False)
sketch14.addGeometry(Part.LineSegment(Vector(2.464602, 23.38573, 0), Vector(-2.282984, 22.886739, 0)), False)
sketch14.addGeometry(Part.LineSegment(Vector(-2.282984, 22.886739, 0), Vector(-1.409539, 20.48697, 0)), False)
sketch14.addGeometry(Part.ArcOfCircle(Part.Circle(Vector(0, 21, 0), Vector(0, 0, 1), 1.5), math.radians(-160), math.radians(-20)), False)
sketch14.addConstraint(Sketcher.Constraint("Coincident", 0, 2, 1, 1))
sketch14.addConstraint(Sketcher.Constraint("Coincident", 1, 2, 2, 1))
sketch14.addConstraint(Sketcher.Constraint("Tangent", 2, 2, 3, 1))
sketch14.addConstraint(Sketcher.Constraint("Tangent", 3, 2, 0, 1))
sketch14.addConstraint(Sketcher.Constraint("Symmetric", 2, 2, 3, 2, -2))
sketch14.addConstraint(Sketcher.Constraint("Radius", 3, Q("1.5 mm")))
sketch14.addConstraint(Sketcher.Constraint("Angle", 0, Q("70 deg")))
sketch14.addConstraint(Sketcher.Constraint("Angle", 1, Q("-174 deg")))
sketch14.addConstraint(Sketcher.Constraint("DistanceY", -1, 1, 3, 3, Q("21 mm")))
sketch14.addConstraint(Sketcher.Constraint("DistanceX", -1, 1, 0, 2, Q("2.464602 mm")))
pad4 = body.newObject("PartDesign::Pad", "Pad003")
pad4.Profile = sketch14
pad4.Length = 10
doc.recompute()

mirrored2 = body.newObject("PartDesign::Mirrored", "Mirrored001")
mirrored2.Originals = [pad4]
mirrored2.MirrorPlane = (doc.getObject("XZ_Plane"), [""])
body.Tip = mirrored2

sketch15 = body.newObject("Sketcher::SketchObject", "Sketch014")
sketch15.AttachmentSupport = (doc.getObject("XZ_Plane"), [""])
sketch15.MapMode = "FlatFace"
add_polygon(sketch15, [(28.08233, 11.741534), (27.574617, 8.862149), (29.544233, 9.209445)])
sketch15.addConstraint(Sketcher.Constraint("Equal", 0, 2))
sketch15.addConstraint(Sketcher.Constraint("Angle", 0, Q("-100 deg")))
sketch15.addConstraint(Sketcher.Constraint("Angle", 1, Q("10 deg")))
sketch15.addConstraint(Sketcher.Constraint("Distance", 1, Q("2 mm")))
sketch15.addConstraint(Sketcher.Constraint("DistanceY", -1, 1, 0, 2, Q("8.862149 mm")))
sketch15.addConstraint(Sketcher.Constraint("DistanceX", -1, 1, 2, 2, Q("28.08233 mm")))

sketch16 = body.newObject("Sketcher::SketchObject", "Sketch015")
sketch16.Placement = App.Placement(Vector(-0.68404, 0, 3.879385), App.Rotation(Vector(0.984807753, 0, 0.173648178), Vector(0, 1, 0), Vector(-0.173648178, 0, 0.984807753), "ZXY"))
sketch16.addGeometry(Part.LineSegment(Vector(-25.64928, 21.980227, 0), Vector(26.35072, 27.980227, 0)), False)
sketch16.addGeometry(Part.ArcOfCircle(Part.Circle(Vector(26.694593, 25, 0), Vector(0, 0, 1), 3), math.radians(0), math.radians(96.581945)), False)
sketch16.addGeometry(Part.LineSegment(Vector(29.694593, 25, 0), Vector(29.694593, -25, 0)), False)
sketch16.addGeometry(Part.ArcOfCircle(Part.Circle(Vector(26.694593, -25, 0), Vector(0, 0, 1), 3), math.radians(-96.581945), math.radians(0)), False)
sketch16.addGeometry(Part.LineSegment(Vector(26.35072, -27.980227, 0), Vector(-25.64928, -21.980227, 0)), False)
sketch16.addGeometry(Part.ArcOfCircle(Part.Circle(Vector(-25.305407, -19, 0), Vector(0, 0, 1), 3), math.radians(180), math.radians(263.418055)), False)
sketch16.addGeometry(Part.LineSegment(Vector(-28.305407, -19, 0), Vector(-28.305407, 19, 0)), False)
sketch16.addGeometry(Part.ArcOfCircle(Part.Circle(Vector(-25.305407, 19, 0), Vector(0, 0, 1), 3), math.radians(96.581945), math.radians(180)), False)
sketch16.addConstraint(Sketcher.Constraint("Tangent", 0, 2, 1, 2))
sketch16.addConstraint(Sketcher.Constraint("Tangent", 1, 1, 2, 1))
sketch16.addConstraint(Sketcher.Constraint("Tangent", 2, 2, 3, 2))
sketch16.addConstraint(Sketcher.Constraint("Tangent", 3, 1, 4, 1))
sketch16.addConstraint(Sketcher.Constraint("Tangent", 4, 2, 5, 2))
sketch16.addConstraint(Sketcher.Constraint("Tangent", 5, 1, 6, 1))
sketch16.addConstraint(Sketcher.Constraint("Tangent", 6, 2, 7, 2))
sketch16.addConstraint(Sketcher.Constraint("Tangent", 7, 1, 0, 1))
sketch16.addConstraint(Sketcher.Constraint("Vertical", 2))
sketch16.addConstraint(Sketcher.Constraint("Vertical", 6))
sketch16.addConstraint(Sketcher.Constraint("Equal", 1, 3))
sketch16.addConstraint(Sketcher.Constraint("Equal", 3, 5))
sketch16.addConstraint(Sketcher.Constraint("Equal", 5, 7))
sketch16.addConstraint(Sketcher.Constraint("Symmetric", 0, 2, 3, 1, -1))
sketch16.addConstraint(Sketcher.Constraint("Radius", 1, Q("3 mm")))
sketch16.addConstraint(Sketcher.Constraint("DistanceY", 2, 2, 2, 1, Q("50 mm")))
sketch16.addConstraint(Sketcher.Constraint("DistanceY", 6, 1, 6, 2, Q("38 mm")))
sketch16.addConstraint(Sketcher.Constraint("DistanceX", 5, 3, 3, 3, Q("52 mm")))
sketch16.addConstraint(Sketcher.Constraint("DistanceX", -1, 1, 0, 2, Q("26.35072 mm")))
doc.recompute()

subtractivepipe2 = body.newObject("PartDesign::SubtractivePipe", "SubtractivePipe001")
subtractivepipe2.Profile = sketch15
subtractivepipe2.Spine = (sketch16, ["Edge1", "Edge2", "Edge3", "Edge4", "Edge5", "Edge6", "Edge7", "Edge8"])

doc.recompute()
